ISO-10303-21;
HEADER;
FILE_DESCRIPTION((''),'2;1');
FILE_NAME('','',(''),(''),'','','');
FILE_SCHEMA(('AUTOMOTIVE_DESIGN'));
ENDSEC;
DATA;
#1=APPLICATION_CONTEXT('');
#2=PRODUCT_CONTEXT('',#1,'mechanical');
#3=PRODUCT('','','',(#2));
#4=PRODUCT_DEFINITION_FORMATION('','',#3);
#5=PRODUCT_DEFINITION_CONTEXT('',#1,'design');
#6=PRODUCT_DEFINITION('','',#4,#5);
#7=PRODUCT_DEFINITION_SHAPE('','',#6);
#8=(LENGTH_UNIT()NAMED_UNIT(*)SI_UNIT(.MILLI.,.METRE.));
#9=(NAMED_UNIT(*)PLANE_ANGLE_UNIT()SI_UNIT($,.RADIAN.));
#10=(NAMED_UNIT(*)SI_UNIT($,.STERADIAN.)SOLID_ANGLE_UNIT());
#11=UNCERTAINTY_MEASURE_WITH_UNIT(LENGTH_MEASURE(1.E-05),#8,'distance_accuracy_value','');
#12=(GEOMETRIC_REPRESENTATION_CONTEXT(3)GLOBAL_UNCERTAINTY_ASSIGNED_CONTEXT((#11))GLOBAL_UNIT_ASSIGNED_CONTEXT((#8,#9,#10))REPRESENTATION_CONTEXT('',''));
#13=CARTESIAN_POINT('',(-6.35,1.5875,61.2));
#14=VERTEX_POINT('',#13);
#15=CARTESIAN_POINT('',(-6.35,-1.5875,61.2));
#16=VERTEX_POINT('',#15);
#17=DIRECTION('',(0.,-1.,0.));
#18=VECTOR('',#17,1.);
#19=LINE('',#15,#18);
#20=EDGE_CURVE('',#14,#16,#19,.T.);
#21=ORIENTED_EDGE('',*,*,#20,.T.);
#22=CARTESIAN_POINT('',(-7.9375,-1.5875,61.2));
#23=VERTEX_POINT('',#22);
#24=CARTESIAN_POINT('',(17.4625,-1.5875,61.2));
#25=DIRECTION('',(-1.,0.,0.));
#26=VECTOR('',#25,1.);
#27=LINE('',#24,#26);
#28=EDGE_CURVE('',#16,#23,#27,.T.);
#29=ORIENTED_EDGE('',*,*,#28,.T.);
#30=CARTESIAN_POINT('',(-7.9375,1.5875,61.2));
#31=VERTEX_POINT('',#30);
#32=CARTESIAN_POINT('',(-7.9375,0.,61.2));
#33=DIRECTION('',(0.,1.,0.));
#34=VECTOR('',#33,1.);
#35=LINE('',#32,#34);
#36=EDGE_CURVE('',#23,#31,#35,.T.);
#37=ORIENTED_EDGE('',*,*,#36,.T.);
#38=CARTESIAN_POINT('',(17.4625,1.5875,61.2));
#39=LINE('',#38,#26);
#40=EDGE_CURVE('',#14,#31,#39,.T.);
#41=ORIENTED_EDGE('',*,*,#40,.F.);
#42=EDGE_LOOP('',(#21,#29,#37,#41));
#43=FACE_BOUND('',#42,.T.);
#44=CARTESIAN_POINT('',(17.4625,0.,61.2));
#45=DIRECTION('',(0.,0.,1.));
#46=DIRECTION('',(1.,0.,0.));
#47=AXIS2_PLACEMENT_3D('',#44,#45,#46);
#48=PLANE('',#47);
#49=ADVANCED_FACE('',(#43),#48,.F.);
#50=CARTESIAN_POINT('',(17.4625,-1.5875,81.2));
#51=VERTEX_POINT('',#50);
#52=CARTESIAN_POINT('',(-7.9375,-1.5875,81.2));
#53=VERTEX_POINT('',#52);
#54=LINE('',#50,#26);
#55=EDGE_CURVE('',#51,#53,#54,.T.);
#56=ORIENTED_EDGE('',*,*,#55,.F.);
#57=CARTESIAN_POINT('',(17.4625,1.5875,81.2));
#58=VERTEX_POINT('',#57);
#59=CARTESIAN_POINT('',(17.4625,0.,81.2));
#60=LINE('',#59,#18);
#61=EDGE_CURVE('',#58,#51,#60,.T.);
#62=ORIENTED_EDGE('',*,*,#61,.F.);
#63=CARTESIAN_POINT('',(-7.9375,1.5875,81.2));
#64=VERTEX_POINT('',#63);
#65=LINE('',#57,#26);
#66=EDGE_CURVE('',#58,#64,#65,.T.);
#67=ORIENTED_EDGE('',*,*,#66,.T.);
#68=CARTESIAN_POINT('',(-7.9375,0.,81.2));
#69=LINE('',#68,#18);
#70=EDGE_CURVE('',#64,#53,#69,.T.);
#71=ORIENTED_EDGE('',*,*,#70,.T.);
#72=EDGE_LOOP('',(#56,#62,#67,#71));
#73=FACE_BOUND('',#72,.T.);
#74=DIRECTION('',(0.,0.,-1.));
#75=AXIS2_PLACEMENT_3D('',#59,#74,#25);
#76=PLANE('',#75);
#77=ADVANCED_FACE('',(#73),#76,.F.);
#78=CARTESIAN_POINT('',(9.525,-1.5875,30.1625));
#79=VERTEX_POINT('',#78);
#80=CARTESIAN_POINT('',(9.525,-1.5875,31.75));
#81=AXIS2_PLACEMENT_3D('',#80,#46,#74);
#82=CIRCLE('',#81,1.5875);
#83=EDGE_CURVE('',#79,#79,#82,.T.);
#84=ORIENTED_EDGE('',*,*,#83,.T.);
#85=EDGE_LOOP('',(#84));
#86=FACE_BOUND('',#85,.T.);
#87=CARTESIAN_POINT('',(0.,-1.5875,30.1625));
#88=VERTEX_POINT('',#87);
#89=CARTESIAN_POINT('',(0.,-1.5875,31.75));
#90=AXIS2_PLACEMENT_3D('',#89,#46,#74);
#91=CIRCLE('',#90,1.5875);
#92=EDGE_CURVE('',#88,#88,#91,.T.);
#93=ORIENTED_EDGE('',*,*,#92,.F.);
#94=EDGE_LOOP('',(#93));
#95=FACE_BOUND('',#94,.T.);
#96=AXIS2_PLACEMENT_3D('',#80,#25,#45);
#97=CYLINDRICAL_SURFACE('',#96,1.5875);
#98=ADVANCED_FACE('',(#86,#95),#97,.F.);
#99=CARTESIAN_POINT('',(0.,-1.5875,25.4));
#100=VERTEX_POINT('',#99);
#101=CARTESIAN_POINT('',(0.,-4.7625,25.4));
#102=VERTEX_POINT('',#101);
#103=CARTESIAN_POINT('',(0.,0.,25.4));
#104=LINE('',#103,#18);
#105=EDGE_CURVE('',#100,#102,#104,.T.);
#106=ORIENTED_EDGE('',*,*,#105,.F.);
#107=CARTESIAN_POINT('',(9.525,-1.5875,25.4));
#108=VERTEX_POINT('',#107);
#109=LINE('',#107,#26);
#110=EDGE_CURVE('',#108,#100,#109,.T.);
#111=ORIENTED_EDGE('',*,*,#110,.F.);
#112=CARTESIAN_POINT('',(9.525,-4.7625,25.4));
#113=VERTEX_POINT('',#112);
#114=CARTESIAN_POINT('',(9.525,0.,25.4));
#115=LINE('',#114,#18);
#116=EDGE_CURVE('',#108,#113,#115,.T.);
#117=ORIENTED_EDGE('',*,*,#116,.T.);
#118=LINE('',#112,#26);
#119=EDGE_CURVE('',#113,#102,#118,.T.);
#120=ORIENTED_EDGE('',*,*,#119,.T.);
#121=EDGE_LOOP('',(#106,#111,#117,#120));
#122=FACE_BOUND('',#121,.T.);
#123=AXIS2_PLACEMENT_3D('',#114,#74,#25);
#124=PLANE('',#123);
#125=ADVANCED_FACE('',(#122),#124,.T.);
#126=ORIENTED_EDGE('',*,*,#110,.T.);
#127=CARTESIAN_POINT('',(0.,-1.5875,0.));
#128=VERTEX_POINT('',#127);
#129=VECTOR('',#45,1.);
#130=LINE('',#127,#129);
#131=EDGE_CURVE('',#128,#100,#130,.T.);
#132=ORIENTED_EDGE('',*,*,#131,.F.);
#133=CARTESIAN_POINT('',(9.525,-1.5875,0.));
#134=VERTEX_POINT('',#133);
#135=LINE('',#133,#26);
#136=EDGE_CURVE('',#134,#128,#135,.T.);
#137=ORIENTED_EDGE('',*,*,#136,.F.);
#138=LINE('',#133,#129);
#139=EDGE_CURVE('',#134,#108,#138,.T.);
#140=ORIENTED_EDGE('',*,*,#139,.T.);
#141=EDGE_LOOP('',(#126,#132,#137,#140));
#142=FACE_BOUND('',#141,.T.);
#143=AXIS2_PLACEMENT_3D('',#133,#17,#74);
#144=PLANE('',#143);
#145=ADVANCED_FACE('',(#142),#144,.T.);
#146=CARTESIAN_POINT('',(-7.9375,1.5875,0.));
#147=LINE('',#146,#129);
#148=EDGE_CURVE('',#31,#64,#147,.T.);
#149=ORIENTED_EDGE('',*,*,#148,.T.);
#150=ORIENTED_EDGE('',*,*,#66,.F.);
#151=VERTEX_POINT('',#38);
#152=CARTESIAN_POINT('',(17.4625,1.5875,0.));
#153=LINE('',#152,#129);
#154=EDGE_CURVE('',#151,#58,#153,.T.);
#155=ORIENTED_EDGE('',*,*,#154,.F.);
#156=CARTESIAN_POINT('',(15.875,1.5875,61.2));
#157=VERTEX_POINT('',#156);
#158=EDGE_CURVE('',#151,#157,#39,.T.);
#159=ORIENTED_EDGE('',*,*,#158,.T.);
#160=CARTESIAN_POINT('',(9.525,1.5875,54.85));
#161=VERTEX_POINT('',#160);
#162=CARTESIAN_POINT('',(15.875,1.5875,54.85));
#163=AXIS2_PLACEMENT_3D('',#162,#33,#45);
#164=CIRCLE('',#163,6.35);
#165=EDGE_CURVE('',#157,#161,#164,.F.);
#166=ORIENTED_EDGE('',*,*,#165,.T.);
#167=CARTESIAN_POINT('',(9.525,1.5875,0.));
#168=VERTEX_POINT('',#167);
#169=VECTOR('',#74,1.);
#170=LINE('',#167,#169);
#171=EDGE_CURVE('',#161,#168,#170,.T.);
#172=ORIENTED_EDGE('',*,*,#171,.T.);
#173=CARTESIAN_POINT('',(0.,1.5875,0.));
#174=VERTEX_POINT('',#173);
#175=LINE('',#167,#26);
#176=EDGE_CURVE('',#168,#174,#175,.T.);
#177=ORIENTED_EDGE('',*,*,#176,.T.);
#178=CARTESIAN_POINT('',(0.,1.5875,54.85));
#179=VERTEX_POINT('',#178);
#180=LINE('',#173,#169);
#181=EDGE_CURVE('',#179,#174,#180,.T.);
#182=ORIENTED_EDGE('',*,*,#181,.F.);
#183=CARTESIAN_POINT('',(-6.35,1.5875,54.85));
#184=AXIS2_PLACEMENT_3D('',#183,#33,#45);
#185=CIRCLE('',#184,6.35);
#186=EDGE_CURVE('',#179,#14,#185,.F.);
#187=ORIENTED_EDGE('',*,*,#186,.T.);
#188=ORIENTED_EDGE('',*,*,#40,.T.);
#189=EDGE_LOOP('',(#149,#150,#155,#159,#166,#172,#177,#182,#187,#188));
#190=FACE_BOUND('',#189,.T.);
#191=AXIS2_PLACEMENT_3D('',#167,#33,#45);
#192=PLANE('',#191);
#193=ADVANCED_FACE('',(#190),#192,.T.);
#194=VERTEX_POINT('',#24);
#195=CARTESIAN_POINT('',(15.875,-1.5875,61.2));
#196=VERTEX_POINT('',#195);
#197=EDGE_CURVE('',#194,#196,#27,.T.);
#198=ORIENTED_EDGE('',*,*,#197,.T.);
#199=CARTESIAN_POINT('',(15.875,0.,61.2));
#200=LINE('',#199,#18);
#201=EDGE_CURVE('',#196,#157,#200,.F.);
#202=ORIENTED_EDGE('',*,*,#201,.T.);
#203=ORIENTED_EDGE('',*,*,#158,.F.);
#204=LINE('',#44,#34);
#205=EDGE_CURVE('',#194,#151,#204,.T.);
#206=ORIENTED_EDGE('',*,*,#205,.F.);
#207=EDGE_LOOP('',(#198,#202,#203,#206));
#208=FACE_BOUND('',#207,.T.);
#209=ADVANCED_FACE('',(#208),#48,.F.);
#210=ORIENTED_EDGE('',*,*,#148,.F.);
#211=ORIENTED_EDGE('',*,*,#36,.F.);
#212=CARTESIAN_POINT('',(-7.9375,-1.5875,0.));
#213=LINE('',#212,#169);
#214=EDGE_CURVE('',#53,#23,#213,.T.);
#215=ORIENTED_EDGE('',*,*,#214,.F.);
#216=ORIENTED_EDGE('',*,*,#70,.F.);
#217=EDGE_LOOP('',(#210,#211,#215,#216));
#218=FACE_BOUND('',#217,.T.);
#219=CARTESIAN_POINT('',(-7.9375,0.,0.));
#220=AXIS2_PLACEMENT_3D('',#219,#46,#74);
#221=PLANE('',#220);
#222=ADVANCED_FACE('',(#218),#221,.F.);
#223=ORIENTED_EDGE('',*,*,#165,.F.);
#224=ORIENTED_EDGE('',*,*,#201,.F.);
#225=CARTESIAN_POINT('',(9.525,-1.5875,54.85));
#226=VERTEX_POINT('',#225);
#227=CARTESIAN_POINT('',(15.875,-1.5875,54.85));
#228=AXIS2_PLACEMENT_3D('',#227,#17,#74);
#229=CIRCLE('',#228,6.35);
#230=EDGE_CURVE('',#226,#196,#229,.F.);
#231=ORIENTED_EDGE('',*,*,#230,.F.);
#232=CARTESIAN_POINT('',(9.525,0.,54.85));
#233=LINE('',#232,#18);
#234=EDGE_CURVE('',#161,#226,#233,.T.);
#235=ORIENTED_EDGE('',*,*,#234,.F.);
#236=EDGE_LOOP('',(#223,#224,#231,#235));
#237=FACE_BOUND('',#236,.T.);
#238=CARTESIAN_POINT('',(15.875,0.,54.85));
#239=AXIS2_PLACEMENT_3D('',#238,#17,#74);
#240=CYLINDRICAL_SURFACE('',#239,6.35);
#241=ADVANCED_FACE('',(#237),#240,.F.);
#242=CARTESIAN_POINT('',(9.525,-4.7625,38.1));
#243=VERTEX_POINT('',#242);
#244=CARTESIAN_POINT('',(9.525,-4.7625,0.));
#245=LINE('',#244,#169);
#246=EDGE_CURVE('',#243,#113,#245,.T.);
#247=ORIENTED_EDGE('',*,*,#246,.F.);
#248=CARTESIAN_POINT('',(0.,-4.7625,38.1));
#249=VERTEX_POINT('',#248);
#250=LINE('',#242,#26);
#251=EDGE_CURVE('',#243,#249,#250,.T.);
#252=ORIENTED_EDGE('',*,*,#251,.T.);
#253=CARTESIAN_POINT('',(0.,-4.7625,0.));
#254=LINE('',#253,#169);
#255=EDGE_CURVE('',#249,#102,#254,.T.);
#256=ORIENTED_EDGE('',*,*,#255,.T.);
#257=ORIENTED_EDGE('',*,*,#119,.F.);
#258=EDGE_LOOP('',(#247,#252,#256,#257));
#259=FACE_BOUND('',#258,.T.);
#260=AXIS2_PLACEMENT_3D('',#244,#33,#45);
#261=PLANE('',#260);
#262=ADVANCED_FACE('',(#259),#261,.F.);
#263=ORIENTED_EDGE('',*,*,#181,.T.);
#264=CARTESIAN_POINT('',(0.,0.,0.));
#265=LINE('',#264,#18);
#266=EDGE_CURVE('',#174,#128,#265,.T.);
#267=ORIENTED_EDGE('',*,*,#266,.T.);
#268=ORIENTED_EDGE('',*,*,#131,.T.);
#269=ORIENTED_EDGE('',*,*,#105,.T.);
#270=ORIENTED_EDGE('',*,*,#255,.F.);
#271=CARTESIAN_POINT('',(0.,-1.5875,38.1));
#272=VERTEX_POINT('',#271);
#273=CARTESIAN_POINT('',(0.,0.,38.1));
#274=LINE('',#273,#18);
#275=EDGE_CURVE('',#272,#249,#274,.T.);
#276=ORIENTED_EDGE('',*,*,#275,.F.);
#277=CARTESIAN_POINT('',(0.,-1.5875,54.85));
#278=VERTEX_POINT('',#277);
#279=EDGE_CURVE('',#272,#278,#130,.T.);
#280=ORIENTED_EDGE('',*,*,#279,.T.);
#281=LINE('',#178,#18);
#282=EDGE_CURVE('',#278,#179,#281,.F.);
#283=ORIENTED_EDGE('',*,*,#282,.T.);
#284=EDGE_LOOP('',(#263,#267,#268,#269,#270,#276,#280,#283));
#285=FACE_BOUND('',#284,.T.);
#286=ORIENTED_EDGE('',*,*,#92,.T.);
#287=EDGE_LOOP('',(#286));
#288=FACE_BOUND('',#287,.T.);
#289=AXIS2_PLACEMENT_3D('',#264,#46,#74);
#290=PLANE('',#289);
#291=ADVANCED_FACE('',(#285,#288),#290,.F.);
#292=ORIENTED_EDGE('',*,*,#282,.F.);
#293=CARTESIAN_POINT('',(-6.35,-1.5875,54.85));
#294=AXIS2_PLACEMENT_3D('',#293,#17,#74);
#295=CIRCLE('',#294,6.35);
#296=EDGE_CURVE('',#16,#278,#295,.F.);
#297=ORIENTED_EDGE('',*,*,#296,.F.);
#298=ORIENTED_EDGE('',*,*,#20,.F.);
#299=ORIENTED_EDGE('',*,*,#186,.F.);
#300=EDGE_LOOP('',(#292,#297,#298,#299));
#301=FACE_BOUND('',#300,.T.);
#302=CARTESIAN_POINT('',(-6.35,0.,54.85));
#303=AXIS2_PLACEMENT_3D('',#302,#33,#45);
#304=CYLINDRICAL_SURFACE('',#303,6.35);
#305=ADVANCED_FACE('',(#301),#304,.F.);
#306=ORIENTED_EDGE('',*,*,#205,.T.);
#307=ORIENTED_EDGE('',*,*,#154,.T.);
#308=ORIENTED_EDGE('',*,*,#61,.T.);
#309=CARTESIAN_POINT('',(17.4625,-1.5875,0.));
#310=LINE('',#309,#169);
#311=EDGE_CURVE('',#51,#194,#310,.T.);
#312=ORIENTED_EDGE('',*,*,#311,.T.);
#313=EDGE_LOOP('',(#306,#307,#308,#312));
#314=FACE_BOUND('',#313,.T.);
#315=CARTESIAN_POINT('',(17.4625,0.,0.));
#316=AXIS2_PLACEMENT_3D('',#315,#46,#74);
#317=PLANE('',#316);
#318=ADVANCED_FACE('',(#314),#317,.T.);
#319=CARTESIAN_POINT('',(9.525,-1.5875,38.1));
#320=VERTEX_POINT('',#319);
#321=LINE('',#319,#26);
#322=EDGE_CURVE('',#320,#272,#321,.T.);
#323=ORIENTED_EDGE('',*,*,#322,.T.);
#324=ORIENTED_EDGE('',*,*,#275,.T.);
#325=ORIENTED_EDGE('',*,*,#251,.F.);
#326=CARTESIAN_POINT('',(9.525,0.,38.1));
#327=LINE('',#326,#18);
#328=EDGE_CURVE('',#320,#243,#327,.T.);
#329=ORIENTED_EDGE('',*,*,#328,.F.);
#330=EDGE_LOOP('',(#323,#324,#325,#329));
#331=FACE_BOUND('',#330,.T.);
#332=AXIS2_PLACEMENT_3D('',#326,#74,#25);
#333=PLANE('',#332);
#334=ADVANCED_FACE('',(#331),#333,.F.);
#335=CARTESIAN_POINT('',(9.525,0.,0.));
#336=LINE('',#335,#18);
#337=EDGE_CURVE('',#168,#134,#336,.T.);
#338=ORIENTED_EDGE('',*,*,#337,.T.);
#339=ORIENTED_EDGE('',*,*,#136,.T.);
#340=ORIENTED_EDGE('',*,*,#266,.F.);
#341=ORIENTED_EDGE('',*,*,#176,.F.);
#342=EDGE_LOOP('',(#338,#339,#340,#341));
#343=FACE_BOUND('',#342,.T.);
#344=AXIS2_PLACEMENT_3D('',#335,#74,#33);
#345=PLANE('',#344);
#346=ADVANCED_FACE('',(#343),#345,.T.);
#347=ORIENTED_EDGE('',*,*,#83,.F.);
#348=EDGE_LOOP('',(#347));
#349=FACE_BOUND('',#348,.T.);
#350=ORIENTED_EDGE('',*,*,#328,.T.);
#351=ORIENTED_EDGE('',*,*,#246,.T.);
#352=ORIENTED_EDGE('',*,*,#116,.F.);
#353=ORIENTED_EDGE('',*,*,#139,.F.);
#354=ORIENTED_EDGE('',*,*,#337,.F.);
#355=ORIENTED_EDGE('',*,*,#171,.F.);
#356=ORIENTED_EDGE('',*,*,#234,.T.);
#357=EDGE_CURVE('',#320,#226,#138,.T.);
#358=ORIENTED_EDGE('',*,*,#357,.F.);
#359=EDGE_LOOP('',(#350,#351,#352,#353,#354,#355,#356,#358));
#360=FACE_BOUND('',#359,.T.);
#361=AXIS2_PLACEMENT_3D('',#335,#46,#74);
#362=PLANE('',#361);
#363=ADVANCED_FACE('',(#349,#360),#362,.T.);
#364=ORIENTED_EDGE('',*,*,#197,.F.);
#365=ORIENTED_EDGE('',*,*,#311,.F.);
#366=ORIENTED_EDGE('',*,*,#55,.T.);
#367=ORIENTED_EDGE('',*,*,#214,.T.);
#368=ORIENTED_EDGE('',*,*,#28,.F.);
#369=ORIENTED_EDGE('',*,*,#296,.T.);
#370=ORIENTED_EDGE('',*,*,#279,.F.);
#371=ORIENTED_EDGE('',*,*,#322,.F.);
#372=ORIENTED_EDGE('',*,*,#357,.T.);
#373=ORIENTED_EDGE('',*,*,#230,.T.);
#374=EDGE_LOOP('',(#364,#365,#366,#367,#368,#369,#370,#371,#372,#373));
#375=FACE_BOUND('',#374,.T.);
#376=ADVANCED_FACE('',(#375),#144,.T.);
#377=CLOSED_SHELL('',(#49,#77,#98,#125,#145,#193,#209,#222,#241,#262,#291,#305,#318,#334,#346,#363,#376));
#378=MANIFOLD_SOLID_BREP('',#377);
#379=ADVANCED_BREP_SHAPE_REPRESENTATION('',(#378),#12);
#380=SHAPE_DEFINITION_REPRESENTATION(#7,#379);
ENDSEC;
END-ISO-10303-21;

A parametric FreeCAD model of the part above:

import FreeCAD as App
import Part
import Sketcher
from FreeCAD import Vector
Q = App.Units.Quantity


def edges_at(feature, points):
    """Names of the edges that pass closest to the given points."""
    edges = feature.Shape.Edges
    near = lambda p: min(range(len(edges)), key=lambda i: edges[i].distToShape(Part.Vertex(*p))[0])
    return sorted({f"Edge{near(p) + 1}" for p in points})

doc = App.newDocument("Part")
body = doc.addObject("PartDesign::Body", "Body")

# Sketch on YZ plane
sketch1 = body.newObject("Sketcher::SketchObject", "Sketch")
sketch1.AttachmentSupport = (doc.getObject("YZ_Plane"), [""])
sketch1.MapMode = "FlatFace"
sketch1.addGeometry([
    Part.LineSegment(Vector(-1.5875, 0, 0), Vector(1.5875, 0, 0)),  # 0
    Part.LineSegment(Vector(1.5875, 0, 0), Vector(1.5875, 76.2, 0)),  # 1
    Part.LineSegment(Vector(1.5875, 76.2, 0), Vector(-1.5875, 76.2, 0)),  # 2
    Part.LineSegment(Vector(-1.5875, 76.2, 0), Vector(-1.5875, 38.1, 0)),  # 3
    Part.LineSegment(Vector(-1.5875, 38.1, 0), Vector(-4.7625, 38.1, 0)),  # 4
    Part.LineSegment(Vector(-4.7625, 38.1, 0), Vector(-4.7625, 25.4, 0)),  # 5
    Part.LineSegment(Vector(-4.7625, 25.4, 0), Vector(-1.5875, 25.4, 0)),  # 6
    Part.LineSegment(Vector(-1.5875, 25.4, 0), Vector(-1.5875, 0, 0)),  # 7
    Part.Circle(Vector(-1.5875, 31.75, 0), Vector(0, 0, 1), 1.5875),  # 8
], False)
sketch1.addConstraint([
    Sketcher.Constraint("Coincident", 0, 2, 1, 1),
    Sketcher.Constraint("Coincident", 1, 2, 2, 1),
    Sketcher.Constraint("Coincident", 2, 2, 3, 1),
    Sketcher.Constraint("Coincident", 3, 2, 4, 1),
    Sketcher.Constraint("Coincident", 4, 2, 5, 1),
    Sketcher.Constraint("Coincident", 5, 2, 6, 1),
    Sketcher.Constraint("Coincident", 6, 2, 7, 1),
    Sketcher.Constraint("Coincident", 7, 2, 0, 1),
    Sketcher.Constraint("Horizontal", 0),
    Sketcher.Constraint("Vertical", 1),
    Sketcher.Constraint("Horizontal", 2),
    Sketcher.Constraint("Vertical", 3),
    Sketcher.Constraint("Horizontal", 4),
    Sketcher.Constraint("Vertical", 5),
    Sketcher.Constraint("Horizontal", 6),
    Sketcher.Constraint("Vertical", 7),
    Sketcher.Constraint("Symmetric", 0, 2, 7, 2, -1, 1),
    Sketcher.Constraint("Vertical", 8, 3, 2, 2),
    Sketcher.Constraint("Vertical", 3, 2, 6, 2),
    Sketcher.Constraint("Equal", 2, 4),
    Sketcher.Constraint("DistanceY", 1, 1, 1, 2, Q("3 in")),
    Sketcher.Constraint("DistanceY", 7, 2, 7, 1, Q("1 in")),
    Sketcher.Constraint("Diameter", 8, Q("0.125 in")),
    Sketcher.Constraint("DistanceY", 3, 2, 3, 1, Q("1.5 in")),
    Sketcher.Constraint("DistanceX", 0, 1, 0, 2, Q("0.125 in")),
    Sketcher.Constraint("DistanceY", -1, 1, 8, 3, Q("1.25 in")),
])
pad1 = body.newObject("PartDesign::Pad", "Pad")
pad1.Profile = sketch1
pad1.Length = Q("0.375 in")

# Sketch on YZ plane
sketch2 = body.newObject("Sketcher::SketchObject", "Sketch001")
sketch2.AttachmentSupport = (doc.getObject("YZ_Plane"), [""])
sketch2.MapMode = "FlatFace"
sketch2.AttachmentOffset = App.Placement(Vector(0, 0, 0.1875 * 25.4), App.Rotation())
sketch2.addGeometry([
    Part.LineSegment(Vector(-1.5875, 61.2, 0), Vector(1.5875, 61.2, 0)),
    Part.LineSegment(Vector(1.5875, 61.2, 0), Vector(1.5875, 81.2, 0)),
    Part.LineSegment(Vector(1.5875, 81.2, 0), Vector(-1.5875, 81.2, 0)),
    Part.LineSegment(Vector(-1.5875, 81.2, 0), Vector(-1.5875, 61.2, 0)),
], False)
sketch2.addConstraint([
    Sketcher.Constraint("Coincident", 0, 2, 1, 1),
    Sketcher.Constraint("Coincident", 1, 2, 2, 1),
    Sketcher.Constraint("Coincident", 2, 2, 3, 1),
    Sketcher.Constraint("Coincident", 3, 2, 0, 1),
    Sketcher.Constraint("Horizontal", 0),
    Sketcher.Constraint("Vertical", 1),
    Sketcher.Constraint("Horizontal", 2),
    Sketcher.Constraint("Vertical", 3),
    Sketcher.Constraint("DistanceX", 0, 1, 0, 2, Q("0.125 in")),
    Sketcher.Constraint("DistanceX", -1, 1, 0, 2, Q("0.0625 in")),
    Sketcher.Constraint("DistanceY", 1, 1, 1, 2, 20.0),
    Sketcher.Constraint("DistanceY", -1, 1, 0, 2, 61.2),
])
pad2 = body.newObject("PartDesign::Pad", "Pad001")
pad2.Profile = sketch2
pad2.Length = Q("1 in")
pad2.Midplane = True
doc.recompute()

fillet = body.newObject("PartDesign::Fillet", "Fillet")
fillet.Base = (pad2, edges_at(pad2, [(0, 0, 61.2), (9.525, 0, 61.2)]))
fillet.Radius = Q("0.25 in")

doc.recompute()
